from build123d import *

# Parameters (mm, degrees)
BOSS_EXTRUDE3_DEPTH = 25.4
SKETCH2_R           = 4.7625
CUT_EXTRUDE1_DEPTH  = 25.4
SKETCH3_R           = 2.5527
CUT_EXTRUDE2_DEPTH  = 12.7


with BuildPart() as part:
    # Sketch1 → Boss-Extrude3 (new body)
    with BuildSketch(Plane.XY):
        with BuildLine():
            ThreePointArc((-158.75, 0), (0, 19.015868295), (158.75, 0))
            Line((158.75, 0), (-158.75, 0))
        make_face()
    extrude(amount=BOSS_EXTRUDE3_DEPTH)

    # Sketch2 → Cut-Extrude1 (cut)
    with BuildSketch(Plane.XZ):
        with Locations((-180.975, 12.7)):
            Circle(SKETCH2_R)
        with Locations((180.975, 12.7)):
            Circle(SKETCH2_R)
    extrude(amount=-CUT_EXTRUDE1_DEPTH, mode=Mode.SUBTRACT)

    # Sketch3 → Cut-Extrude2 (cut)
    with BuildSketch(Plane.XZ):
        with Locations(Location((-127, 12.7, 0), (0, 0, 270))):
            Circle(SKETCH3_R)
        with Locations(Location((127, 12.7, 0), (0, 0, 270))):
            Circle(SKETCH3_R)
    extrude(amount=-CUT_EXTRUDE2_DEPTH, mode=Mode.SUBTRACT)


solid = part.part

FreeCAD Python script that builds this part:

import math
import FreeCAD as App
import Part
import Sketcher
from FreeCAD import Vector
Q = App.Units.Quantity

doc = App.newDocument("Part")
body = doc.addObject("PartDesign::Body", "Body")

sketch1 = body.newObject("Sketcher::SketchObject", "Sketch")
sketch1.AttachmentSupport = (doc.getObject("XY_Plane"), [""])
sketch1.MapMode = "FlatFace"
sketch1.addGeometry([
    Part.ArcOfCircle(Part.Circle(Vector(0, -653, 0), Vector(0, 0, 1), 672), math.radians(76), math.radians(104)),
    Part.LineSegment(Vector(-159, 0, 0), Vector(159, 0, 0)),
], False)
sketch1.addConstraint([
    Sketcher.Constraint("Coincident", 0, 1, 1, 2),
    Sketcher.Constraint("Coincident", 1, 1, 0, 2),
    Sketcher.Constraint("Horizontal", 1),
    Sketcher.Constraint("PointOnObject", 0, 3, -2),
    Sketcher.Constraint("PointOnObject", 0, 1, -1),
    Sketcher.Constraint("DistanceX", 1, 1, 1, 2, Q("12.5 in")),
    Sketcher.Constraint("Radius", 0, 672.153523),
])
pad1 = body.newObject("PartDesign::Pad", "Pad")
pad1.Profile = sketch1
pad1.Length = Q("1 in")

sketch2 = body.newObject("Sketcher::SketchObject", "Sketch001")
sketch2.AttachmentSupport = (doc.getObject("XZ_Plane"), [""])
sketch2.MapMode = "FlatFace"
sketch2.addGeometry([
    Part.Circle(Vector(-181, 12.7, 0), Vector(0, 0, 1), 4.8),
    Part.Circle(Vector(181, 12.7, 0), Vector(0, 0, 1), 4.8),
], False)
sketch2.addConstraint([
    Sketcher.Constraint("Equal", 0, 1),
    Sketcher.Constraint("Symmetric", 0, 3, 1, 3, -2),
    Sketcher.Constraint("Diameter", 0, Q("0.375 in")),
    Sketcher.Constraint("DistanceY", -1, 1, 0, 3, Q("0.5 in")),
    Sketcher.Constraint("DistanceX", 0, 3, 1, 3, Q("14.25 in")),
])
pocket1 = body.newObject("PartDesign::Pocket", "Pocket")
pocket1.Profile = sketch2
pocket1.Length = Q("1 in")

sketch3 = body.newObject("Sketcher::SketchObject", "Sketch002")
sketch3.AttachmentSupport = (doc.getObject("XZ_Plane"), [""])
sketch3.MapMode = "FlatFace"
sketch3.addGeometry([
    Part.Circle(Vector(-127, 12.7, 0), Vector(0, 0, 1), 2.6),
    Part.Circle(Vector(127, 12.7, 0), Vector(0, 0, 1), 2.6),
], False)
sketch3.addConstraint([
    Sketcher.Constraint("Equal", 0, 1),
    Sketcher.Constraint("Symmetric", 0, 3, 1, 3, -2),
    Sketcher.Constraint("Diameter", 0, Q("0.201 in")),
    Sketcher.Constraint("DistanceX", 0, 3, -1, 1, Q("5 in")),
    Sketcher.Constraint("DistanceY", -1, 1, 0, 3, Q("0.5 in")),
])
pocket2 = body.newObject("PartDesign::Pocket", "Pocket001")
pocket2.Profile = sketch3
pocket2.Length = Q("0.5 in")

doc.recompute()
